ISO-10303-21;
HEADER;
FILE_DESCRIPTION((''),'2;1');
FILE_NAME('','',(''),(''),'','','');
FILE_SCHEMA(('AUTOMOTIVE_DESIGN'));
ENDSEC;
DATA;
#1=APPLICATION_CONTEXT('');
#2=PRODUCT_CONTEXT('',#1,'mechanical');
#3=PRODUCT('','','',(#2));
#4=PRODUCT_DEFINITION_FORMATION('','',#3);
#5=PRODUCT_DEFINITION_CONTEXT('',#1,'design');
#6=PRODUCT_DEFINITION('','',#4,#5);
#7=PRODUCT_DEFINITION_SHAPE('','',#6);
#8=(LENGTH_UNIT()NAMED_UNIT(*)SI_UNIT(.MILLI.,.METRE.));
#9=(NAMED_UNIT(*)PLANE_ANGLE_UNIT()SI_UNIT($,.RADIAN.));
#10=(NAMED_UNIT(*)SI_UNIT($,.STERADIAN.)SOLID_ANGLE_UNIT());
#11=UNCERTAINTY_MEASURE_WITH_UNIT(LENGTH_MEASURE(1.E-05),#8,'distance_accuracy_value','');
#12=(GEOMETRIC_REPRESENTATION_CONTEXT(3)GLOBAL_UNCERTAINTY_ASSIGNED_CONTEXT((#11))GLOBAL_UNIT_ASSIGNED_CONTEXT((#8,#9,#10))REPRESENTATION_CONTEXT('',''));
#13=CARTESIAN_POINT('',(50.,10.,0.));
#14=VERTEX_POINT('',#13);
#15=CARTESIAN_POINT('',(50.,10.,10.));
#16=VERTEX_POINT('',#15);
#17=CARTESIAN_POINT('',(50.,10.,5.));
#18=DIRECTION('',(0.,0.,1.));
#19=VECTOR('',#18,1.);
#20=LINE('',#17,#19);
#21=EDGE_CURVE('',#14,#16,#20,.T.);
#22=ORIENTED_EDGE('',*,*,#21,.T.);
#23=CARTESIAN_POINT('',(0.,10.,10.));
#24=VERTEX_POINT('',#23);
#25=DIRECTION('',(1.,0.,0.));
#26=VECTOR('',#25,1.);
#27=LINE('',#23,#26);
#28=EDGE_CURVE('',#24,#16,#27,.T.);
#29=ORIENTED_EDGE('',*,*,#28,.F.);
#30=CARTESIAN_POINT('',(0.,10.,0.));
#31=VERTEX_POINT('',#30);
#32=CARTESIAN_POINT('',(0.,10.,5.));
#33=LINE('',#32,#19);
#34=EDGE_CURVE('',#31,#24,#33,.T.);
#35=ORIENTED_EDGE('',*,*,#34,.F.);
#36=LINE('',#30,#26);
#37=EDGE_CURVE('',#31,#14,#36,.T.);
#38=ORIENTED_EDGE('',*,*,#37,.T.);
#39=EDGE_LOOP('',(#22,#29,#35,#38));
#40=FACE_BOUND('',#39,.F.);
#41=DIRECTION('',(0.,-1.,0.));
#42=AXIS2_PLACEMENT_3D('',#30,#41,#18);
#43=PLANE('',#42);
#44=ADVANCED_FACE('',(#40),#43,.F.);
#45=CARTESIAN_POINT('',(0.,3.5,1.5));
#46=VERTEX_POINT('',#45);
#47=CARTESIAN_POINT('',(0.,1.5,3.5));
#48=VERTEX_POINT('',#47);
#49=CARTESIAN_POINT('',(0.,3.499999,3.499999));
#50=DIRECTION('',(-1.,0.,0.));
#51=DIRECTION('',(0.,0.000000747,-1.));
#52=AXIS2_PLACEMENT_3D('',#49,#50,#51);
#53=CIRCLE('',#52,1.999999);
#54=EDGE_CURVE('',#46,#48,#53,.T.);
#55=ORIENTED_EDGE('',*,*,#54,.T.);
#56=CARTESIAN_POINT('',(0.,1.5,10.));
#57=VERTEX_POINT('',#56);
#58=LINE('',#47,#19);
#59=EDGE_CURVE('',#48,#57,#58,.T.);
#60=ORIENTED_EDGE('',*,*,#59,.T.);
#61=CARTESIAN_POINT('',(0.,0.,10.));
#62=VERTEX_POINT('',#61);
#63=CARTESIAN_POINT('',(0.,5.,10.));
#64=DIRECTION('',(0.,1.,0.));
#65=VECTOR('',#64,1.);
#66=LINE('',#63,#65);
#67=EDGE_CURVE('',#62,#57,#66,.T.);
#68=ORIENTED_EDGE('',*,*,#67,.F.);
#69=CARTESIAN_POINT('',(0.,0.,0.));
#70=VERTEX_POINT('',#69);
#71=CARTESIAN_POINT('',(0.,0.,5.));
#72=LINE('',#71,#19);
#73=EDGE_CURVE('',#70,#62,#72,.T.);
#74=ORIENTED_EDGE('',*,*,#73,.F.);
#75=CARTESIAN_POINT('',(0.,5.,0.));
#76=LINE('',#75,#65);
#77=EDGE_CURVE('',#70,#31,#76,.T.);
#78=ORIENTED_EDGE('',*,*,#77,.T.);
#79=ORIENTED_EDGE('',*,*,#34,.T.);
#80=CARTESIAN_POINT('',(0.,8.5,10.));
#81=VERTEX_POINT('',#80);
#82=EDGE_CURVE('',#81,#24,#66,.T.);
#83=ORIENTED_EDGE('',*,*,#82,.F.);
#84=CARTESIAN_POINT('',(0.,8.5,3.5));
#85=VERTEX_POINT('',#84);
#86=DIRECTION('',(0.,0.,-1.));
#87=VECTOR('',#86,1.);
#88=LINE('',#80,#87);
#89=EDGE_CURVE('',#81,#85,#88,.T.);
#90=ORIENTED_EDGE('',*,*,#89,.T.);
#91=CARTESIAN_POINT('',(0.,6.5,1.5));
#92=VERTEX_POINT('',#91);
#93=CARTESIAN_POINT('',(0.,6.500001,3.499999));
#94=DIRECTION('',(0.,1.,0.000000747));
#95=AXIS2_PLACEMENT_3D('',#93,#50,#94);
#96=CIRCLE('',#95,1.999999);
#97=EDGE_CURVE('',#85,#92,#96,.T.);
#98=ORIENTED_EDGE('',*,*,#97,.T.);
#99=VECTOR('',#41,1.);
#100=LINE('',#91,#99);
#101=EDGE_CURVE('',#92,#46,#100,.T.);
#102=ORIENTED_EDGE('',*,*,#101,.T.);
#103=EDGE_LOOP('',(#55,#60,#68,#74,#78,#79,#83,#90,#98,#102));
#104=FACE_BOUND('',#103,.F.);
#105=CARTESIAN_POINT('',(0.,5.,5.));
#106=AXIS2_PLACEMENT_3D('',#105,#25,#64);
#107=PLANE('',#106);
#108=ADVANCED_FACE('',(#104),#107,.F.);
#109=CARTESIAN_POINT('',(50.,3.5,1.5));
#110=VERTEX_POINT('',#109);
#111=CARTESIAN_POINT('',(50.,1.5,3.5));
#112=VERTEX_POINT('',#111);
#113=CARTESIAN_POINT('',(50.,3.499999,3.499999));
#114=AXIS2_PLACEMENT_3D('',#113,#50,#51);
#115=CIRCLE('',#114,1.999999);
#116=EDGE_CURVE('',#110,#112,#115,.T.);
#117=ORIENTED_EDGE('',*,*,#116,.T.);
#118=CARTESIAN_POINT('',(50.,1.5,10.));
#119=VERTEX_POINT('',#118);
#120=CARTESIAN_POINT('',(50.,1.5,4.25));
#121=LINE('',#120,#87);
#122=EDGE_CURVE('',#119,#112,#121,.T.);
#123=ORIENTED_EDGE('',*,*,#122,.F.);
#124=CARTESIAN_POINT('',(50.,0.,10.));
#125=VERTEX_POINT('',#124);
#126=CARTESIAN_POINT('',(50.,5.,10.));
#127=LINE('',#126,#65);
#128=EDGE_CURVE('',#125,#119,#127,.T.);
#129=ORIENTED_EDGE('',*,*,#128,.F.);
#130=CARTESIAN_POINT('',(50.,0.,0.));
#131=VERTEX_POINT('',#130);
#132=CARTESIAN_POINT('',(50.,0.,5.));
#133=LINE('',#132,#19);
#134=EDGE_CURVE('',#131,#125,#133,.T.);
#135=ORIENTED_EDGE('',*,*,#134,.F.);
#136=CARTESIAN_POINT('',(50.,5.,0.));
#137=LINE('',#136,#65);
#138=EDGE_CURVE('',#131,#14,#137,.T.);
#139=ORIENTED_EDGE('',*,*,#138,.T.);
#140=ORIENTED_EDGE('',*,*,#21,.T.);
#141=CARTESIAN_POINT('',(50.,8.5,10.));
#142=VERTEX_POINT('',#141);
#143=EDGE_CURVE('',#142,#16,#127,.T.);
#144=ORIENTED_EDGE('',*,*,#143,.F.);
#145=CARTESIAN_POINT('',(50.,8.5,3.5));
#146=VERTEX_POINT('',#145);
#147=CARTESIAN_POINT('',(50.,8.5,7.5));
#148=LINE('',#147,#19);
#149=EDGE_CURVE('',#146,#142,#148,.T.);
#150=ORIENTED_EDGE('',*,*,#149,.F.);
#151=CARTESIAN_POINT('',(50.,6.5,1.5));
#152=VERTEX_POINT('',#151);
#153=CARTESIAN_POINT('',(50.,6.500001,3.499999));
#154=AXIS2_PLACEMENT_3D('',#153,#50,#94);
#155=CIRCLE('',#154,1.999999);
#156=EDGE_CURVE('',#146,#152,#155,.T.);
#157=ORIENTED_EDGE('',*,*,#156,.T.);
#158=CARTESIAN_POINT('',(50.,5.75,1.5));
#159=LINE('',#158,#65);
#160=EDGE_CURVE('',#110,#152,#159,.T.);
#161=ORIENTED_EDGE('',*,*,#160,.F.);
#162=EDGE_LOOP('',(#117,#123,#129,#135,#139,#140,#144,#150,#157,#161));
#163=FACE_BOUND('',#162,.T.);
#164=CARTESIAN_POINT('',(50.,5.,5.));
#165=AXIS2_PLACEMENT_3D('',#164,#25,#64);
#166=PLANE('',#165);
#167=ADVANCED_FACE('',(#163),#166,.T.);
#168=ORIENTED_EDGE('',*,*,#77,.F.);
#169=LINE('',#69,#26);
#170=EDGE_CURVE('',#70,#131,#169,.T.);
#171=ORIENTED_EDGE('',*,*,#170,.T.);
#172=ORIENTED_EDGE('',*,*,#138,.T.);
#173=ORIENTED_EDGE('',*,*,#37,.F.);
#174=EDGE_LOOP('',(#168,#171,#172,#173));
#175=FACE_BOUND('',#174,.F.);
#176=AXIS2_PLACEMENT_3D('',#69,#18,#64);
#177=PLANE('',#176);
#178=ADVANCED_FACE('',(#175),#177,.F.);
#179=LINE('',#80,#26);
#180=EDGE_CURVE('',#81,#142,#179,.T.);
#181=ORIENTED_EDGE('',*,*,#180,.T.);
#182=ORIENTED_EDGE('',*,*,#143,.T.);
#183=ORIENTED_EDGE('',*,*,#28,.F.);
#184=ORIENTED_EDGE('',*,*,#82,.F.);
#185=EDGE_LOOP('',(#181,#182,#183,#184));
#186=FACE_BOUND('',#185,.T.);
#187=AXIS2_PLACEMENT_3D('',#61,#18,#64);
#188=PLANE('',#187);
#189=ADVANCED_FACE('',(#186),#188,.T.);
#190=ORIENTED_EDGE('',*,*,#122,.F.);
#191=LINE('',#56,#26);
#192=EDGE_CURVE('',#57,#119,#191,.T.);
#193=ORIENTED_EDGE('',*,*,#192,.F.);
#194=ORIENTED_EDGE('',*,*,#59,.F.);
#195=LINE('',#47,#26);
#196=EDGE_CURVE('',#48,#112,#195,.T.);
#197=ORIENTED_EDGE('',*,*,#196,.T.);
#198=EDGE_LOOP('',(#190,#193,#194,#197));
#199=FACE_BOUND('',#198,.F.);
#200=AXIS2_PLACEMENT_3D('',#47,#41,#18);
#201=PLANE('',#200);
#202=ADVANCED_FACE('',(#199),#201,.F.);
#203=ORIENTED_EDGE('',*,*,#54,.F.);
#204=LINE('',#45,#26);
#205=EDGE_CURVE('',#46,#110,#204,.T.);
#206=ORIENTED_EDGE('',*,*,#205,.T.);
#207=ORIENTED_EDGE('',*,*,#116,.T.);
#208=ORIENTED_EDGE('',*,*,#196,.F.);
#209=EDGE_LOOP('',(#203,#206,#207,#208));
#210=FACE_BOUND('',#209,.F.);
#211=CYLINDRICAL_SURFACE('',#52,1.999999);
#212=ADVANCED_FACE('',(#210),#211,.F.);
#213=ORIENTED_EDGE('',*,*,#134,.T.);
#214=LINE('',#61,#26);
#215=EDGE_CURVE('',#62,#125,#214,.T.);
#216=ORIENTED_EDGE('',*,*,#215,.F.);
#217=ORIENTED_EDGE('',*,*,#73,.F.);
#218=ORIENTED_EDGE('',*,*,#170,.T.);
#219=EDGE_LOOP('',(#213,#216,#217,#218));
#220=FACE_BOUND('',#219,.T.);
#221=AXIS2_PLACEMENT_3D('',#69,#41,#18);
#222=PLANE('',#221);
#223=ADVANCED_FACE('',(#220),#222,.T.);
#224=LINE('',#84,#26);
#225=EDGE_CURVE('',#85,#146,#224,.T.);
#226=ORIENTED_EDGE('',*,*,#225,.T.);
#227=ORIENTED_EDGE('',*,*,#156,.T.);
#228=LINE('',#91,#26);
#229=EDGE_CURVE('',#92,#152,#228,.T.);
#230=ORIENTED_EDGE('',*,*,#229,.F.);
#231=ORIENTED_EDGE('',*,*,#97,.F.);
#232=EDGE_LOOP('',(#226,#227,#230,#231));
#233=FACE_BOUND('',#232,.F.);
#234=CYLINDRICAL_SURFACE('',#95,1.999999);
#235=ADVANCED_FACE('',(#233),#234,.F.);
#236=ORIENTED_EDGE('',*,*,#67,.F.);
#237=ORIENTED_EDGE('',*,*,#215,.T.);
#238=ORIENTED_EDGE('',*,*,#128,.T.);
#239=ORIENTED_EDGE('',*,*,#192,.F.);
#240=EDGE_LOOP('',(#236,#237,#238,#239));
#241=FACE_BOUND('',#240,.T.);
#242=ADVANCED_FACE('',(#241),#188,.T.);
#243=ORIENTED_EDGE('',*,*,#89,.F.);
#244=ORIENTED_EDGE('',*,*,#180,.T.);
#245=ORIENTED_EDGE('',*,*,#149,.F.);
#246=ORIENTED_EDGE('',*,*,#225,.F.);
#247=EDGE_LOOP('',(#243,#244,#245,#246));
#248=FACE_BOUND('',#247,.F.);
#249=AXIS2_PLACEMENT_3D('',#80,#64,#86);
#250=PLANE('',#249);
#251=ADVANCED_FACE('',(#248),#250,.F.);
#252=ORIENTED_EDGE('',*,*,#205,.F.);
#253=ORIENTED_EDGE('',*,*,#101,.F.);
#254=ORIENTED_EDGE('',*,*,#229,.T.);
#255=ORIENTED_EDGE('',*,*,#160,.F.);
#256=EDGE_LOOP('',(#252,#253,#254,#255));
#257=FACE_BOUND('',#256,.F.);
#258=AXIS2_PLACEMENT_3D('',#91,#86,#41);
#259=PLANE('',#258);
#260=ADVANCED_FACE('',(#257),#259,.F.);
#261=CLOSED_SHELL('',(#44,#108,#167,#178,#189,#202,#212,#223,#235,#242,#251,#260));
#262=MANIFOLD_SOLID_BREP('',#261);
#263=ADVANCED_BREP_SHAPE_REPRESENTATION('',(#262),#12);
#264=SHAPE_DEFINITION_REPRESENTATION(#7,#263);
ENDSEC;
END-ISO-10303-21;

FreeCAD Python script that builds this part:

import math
import FreeCAD as App
import Part
import Sketcher

V = App.Vector
Q = App.Units.Quantity


def add_polygon(sketch, points):
    """Adds a closed chain of lines whose ends are joined by coincident constraints."""
    first, n = sketch.GeometryCount, len(points)
    for a, b in zip(points, points[1:] + points[:1]):
        sketch.addGeometry(Part.LineSegment(App.Vector(*a, 0), App.Vector(*b, 0)), False)
    for i in range(n):
        sketch.addConstraint(Sketcher.Constraint("Coincident", first + i, 2, first + (i + 1) % n, 1))

doc = App.newDocument("Part")
params = doc.addObject("Spreadsheet::Sheet", "Params")
for row, (alias, value) in enumerate([
    ("sketch1_width", "10 mm"),
    ("pad1_length", "50 mm"),
    ("sketch2_radius", "1.999999 mm"),
    ("sketch2_width", "3 mm"),
    ("sketch2_height", "6.5 mm"),
], start=1):
    params.set(f"A{row}", alias)
    params.set(f"B{row}", "=" + value)
    params.setAlias(f"B{row}", alias)

body = doc.addObject("PartDesign::Body", "Body")

# Sketch on YZ plane
sketch1 = body.newObject("Sketcher::SketchObject", "Sketch")
sketch1.AttachmentSupport = (doc.getObject("YZ_Plane"), [""])
sketch1.MapMode = "FlatFace"
add_polygon(sketch1, [(0, 10), (0, 0), (10, 0), (10, 10)])  # lines 0-3
sketch1.addConstraint([
    Sketcher.Constraint("Vertical", 0),
    Sketcher.Constraint("Horizontal", 1),
    Sketcher.Constraint("Vertical", 2),
    Sketcher.Constraint("Horizontal", 3),
    Sketcher.Constraint("Coincident", 0, 2, -1, 1),
    Sketcher.Constraint("Equal", 3, 0),
    Sketcher.Constraint("DistanceX", 1, 1, 1, 2, Q("10 mm")),
])
sketch1.setExpression("Constraints[10]", "Params.sketch1_width")
pad1 = body.newObject("PartDesign::Pad", "Pad")
pad1.Profile = sketch1
pad1.setExpression("Length", "Params.pad1_length")

# Sketch on YZ plane
sketch2 = body.newObject("Sketcher::SketchObject", "Sketch001")
sketch2.AttachmentSupport = (doc.getObject("YZ_Plane"), [""])
sketch2.MapMode = "FlatFace"
sketch2.addGeometry([
    Part.LineSegment(V(8.5, 10, 0), V(8.5, 3.5, 0)),  # 0
    Part.ArcOfCircle(Part.Circle(V(6.5, 3.5, 0), V(0, 0, 1), 2), math.radians(-90), math.radians(0)),  # 1
    Part.LineSegment(V(6.5, 1.5, 0), V(3.5, 1.5, 0)),  # 2
    Part.ArcOfCircle(Part.Circle(V(3.5, 3.5, 0), V(0, 0, 1), 2), math.radians(180), math.radians(270)),  # 3
    Part.LineSegment(V(1.5, 3.5, 0), V(1.5, 10, 0)),  # 4
    Part.LineSegment(V(1.5, 10, 0), V(8.5, 10, 0)),  # 5
], False)
sketch2.addConstraint([
    Sketcher.Constraint("Tangent", 0, 2, 1, 2),
    Sketcher.Constraint("Tangent", 1, 1, 2, 1),
    Sketcher.Constraint("Tangent", 2, 2, 3, 2),
    Sketcher.Constraint("Tangent", 3, 1, 4, 1),
    Sketcher.Constraint("Coincident", 4, 2, 5, 1),
    Sketcher.Constraint("Coincident", 5, 2, 0, 1),
    Sketcher.Constraint("Vertical", 0),
    Sketcher.Constraint("Horizontal", 2),
    Sketcher.Constraint("Vertical", 4),
    Sketcher.Constraint("Horizontal", 5),
    Sketcher.Constraint("Equal", 1, 3),
    Sketcher.Constraint("Radius", 1, Q("1.999999 mm")),
    Sketcher.Constraint("DistanceX", 2, 2, 2, 1, Q("3 mm")),
    Sketcher.Constraint("DistanceY", 0, 2, 0, 1, Q("6.5 mm")),
    Sketcher.Constraint("DistanceY", -1, 1, 4, 2, Q("10 mm")),
    Sketcher.Constraint("DistanceX", -1, 1, 1, 3, Q("6.500001 mm")),
])
sketch2.setExpression("Constraints[11]", "Params.sketch2_radius")
sketch2.setExpression("Constraints[12]", "Params.sketch2_width")
sketch2.setExpression("Constraints[13]", "Params.sketch2_height")
pocket1 = body.newObject("PartDesign::Pocket", "Pocket")
pocket1.Profile = sketch2
pocket1.Type = "ThroughAll"
pocket1.Reversed = True

doc.recompute()
